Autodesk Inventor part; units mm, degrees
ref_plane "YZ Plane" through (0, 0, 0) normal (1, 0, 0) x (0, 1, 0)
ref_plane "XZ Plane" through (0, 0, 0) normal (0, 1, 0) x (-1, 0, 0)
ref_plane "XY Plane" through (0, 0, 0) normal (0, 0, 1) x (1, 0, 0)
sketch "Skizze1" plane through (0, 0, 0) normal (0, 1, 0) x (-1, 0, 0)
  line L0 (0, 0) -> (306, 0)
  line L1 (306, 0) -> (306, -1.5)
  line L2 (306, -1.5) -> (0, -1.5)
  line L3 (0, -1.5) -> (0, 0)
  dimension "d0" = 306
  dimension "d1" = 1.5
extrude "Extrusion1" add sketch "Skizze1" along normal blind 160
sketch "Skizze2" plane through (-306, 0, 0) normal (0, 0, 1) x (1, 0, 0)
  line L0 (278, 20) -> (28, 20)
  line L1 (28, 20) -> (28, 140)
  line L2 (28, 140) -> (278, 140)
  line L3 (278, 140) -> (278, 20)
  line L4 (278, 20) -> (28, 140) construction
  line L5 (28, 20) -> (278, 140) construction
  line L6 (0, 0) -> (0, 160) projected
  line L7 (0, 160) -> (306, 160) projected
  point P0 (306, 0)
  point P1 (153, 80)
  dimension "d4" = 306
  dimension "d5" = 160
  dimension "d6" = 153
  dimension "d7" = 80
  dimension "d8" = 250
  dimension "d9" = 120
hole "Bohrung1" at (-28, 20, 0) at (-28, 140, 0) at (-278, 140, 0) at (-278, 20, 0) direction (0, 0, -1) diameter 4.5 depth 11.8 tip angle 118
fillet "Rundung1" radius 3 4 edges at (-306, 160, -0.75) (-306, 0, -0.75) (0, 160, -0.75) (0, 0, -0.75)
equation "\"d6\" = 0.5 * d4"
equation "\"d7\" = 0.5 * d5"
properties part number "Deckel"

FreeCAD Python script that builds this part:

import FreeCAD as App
import Part
import Sketcher


def edges_at(feature, points):
    """Names of the edges that pass closest to the given points."""
    edges = feature.Shape.Edges
    near = lambda p: min(range(len(edges)), key=lambda i: edges[i].distToShape(Part.Vertex(*p))[0])
    return sorted({f"Edge{near(p) + 1}" for p in points})

doc = App.newDocument("Part")
body = doc.addObject("PartDesign::Body", "Body")

sketch1 = doc.addObject("Sketcher::SketchObject", "Sketch")
body.addObject(sketch1)
sketch1.AttachmentSupport = (doc.XZ_Plane, [""])
sketch1.MapMode = "FlatFace"
sketch1.addGeometry([
    Part.LineSegment(App.Vector(-306, 0, 0), App.Vector(0, 0, 0)),
    Part.LineSegment(App.Vector(0, 0, 0), App.Vector(0, -1.5, 0)),
    Part.LineSegment(App.Vector(0, -1.5, 0), App.Vector(-306, -1.5, 0)),
    Part.LineSegment(App.Vector(-306, -1.5, 0), App.Vector(-306, 0, 0)),
], False)
sketch1.addConstraint([
    Sketcher.Constraint("Coincident", 0, 2, 1, 1),
    Sketcher.Constraint("Coincident", 1, 2, 2, 1),
    Sketcher.Constraint("Coincident", 2, 2, 3, 1),
    Sketcher.Constraint("Coincident", 3, 2, 0, 1),
    Sketcher.Constraint("Horizontal", 0),
    Sketcher.Constraint("Vertical", 1),
    Sketcher.Constraint("Horizontal", 2),
    Sketcher.Constraint("Vertical", 3),
    Sketcher.Constraint("Coincident", 0, 2, -1, 1),
    Sketcher.Constraint("DistanceX", 0, 1, 0, 2, 306.0),
    Sketcher.Constraint("DistanceY", 1, 2, 1, 1, 1.5),
])
pad1 = doc.addObject("PartDesign::Pad", "Pad")
body.addObject(pad1)
pad1.Profile = sketch1
pad1.Length = 160
pad1.Reversed = True

sketch2 = doc.addObject("Sketcher::SketchObject", "Sketch001")
body.addObject(sketch2)
sketch2.AttachmentSupport = (doc.XY_Plane, [""])
sketch2.MapMode = "FlatFace"
sketch2.addGeometry([
    Part.Circle(App.Vector(-28, 20, 0), App.Vector(0, 0, 1), 2.2),
    Part.Circle(App.Vector(-28, 140, 0), App.Vector(0, 0, 1), 2.2),
    Part.Circle(App.Vector(-278, 140, 0), App.Vector(0, 0, 1), 2.2),
    Part.Circle(App.Vector(-278, 20, 0), App.Vector(0, 0, 1), 2.2),
], False)
sketch2.addConstraint([
    Sketcher.Constraint("Equal", 0, 1),
    Sketcher.Constraint("Equal", 1, 2),
    Sketcher.Constraint("Equal", 2, 3),
    Sketcher.Constraint("Horizontal", 1, 3, 2, 3),
    Sketcher.Constraint("Horizontal", 0, 3, 3, 3),
    Sketcher.Constraint("Vertical", 0, 3, 1, 3),
    Sketcher.Constraint("Vertical", 2, 3, 3, 3),
    Sketcher.Constraint("Diameter", 0, 4.5),
    Sketcher.Constraint("DistanceX", 0, 3, -1, 1, 28.0),
    Sketcher.Constraint("DistanceY", -1, 1, 0, 3, 20.0),
    Sketcher.Constraint("DistanceY", -1, 1, 1, 3, 140.0),
    Sketcher.Constraint("DistanceX", 2, 3, -1, 1, 278.0),
])
doc.recompute()
hole = doc.addObject("PartDesign::Hole", "Hole")
body.addObject(hole)
hole.Profile = sketch2
hole.ThreadType = "None"
hole.Diameter = 4.5
hole.DepthType = "Dimension"
hole.Depth = 11.8
hole.DrillPoint = "Angled"
hole.DrillPointAngle = 118
doc.recompute()

fillet = doc.addObject("PartDesign::Fillet", "Fillet")
body.addObject(fillet)
fillet.Base = (hole, edges_at(hole, [
    (-306, 160, -0.75),
    (-306, 0, -0.75),
    (0, 160, -0.75),
    (0, 0, -0.75),
]))
fillet.Radius = 3

doc.recompute()
